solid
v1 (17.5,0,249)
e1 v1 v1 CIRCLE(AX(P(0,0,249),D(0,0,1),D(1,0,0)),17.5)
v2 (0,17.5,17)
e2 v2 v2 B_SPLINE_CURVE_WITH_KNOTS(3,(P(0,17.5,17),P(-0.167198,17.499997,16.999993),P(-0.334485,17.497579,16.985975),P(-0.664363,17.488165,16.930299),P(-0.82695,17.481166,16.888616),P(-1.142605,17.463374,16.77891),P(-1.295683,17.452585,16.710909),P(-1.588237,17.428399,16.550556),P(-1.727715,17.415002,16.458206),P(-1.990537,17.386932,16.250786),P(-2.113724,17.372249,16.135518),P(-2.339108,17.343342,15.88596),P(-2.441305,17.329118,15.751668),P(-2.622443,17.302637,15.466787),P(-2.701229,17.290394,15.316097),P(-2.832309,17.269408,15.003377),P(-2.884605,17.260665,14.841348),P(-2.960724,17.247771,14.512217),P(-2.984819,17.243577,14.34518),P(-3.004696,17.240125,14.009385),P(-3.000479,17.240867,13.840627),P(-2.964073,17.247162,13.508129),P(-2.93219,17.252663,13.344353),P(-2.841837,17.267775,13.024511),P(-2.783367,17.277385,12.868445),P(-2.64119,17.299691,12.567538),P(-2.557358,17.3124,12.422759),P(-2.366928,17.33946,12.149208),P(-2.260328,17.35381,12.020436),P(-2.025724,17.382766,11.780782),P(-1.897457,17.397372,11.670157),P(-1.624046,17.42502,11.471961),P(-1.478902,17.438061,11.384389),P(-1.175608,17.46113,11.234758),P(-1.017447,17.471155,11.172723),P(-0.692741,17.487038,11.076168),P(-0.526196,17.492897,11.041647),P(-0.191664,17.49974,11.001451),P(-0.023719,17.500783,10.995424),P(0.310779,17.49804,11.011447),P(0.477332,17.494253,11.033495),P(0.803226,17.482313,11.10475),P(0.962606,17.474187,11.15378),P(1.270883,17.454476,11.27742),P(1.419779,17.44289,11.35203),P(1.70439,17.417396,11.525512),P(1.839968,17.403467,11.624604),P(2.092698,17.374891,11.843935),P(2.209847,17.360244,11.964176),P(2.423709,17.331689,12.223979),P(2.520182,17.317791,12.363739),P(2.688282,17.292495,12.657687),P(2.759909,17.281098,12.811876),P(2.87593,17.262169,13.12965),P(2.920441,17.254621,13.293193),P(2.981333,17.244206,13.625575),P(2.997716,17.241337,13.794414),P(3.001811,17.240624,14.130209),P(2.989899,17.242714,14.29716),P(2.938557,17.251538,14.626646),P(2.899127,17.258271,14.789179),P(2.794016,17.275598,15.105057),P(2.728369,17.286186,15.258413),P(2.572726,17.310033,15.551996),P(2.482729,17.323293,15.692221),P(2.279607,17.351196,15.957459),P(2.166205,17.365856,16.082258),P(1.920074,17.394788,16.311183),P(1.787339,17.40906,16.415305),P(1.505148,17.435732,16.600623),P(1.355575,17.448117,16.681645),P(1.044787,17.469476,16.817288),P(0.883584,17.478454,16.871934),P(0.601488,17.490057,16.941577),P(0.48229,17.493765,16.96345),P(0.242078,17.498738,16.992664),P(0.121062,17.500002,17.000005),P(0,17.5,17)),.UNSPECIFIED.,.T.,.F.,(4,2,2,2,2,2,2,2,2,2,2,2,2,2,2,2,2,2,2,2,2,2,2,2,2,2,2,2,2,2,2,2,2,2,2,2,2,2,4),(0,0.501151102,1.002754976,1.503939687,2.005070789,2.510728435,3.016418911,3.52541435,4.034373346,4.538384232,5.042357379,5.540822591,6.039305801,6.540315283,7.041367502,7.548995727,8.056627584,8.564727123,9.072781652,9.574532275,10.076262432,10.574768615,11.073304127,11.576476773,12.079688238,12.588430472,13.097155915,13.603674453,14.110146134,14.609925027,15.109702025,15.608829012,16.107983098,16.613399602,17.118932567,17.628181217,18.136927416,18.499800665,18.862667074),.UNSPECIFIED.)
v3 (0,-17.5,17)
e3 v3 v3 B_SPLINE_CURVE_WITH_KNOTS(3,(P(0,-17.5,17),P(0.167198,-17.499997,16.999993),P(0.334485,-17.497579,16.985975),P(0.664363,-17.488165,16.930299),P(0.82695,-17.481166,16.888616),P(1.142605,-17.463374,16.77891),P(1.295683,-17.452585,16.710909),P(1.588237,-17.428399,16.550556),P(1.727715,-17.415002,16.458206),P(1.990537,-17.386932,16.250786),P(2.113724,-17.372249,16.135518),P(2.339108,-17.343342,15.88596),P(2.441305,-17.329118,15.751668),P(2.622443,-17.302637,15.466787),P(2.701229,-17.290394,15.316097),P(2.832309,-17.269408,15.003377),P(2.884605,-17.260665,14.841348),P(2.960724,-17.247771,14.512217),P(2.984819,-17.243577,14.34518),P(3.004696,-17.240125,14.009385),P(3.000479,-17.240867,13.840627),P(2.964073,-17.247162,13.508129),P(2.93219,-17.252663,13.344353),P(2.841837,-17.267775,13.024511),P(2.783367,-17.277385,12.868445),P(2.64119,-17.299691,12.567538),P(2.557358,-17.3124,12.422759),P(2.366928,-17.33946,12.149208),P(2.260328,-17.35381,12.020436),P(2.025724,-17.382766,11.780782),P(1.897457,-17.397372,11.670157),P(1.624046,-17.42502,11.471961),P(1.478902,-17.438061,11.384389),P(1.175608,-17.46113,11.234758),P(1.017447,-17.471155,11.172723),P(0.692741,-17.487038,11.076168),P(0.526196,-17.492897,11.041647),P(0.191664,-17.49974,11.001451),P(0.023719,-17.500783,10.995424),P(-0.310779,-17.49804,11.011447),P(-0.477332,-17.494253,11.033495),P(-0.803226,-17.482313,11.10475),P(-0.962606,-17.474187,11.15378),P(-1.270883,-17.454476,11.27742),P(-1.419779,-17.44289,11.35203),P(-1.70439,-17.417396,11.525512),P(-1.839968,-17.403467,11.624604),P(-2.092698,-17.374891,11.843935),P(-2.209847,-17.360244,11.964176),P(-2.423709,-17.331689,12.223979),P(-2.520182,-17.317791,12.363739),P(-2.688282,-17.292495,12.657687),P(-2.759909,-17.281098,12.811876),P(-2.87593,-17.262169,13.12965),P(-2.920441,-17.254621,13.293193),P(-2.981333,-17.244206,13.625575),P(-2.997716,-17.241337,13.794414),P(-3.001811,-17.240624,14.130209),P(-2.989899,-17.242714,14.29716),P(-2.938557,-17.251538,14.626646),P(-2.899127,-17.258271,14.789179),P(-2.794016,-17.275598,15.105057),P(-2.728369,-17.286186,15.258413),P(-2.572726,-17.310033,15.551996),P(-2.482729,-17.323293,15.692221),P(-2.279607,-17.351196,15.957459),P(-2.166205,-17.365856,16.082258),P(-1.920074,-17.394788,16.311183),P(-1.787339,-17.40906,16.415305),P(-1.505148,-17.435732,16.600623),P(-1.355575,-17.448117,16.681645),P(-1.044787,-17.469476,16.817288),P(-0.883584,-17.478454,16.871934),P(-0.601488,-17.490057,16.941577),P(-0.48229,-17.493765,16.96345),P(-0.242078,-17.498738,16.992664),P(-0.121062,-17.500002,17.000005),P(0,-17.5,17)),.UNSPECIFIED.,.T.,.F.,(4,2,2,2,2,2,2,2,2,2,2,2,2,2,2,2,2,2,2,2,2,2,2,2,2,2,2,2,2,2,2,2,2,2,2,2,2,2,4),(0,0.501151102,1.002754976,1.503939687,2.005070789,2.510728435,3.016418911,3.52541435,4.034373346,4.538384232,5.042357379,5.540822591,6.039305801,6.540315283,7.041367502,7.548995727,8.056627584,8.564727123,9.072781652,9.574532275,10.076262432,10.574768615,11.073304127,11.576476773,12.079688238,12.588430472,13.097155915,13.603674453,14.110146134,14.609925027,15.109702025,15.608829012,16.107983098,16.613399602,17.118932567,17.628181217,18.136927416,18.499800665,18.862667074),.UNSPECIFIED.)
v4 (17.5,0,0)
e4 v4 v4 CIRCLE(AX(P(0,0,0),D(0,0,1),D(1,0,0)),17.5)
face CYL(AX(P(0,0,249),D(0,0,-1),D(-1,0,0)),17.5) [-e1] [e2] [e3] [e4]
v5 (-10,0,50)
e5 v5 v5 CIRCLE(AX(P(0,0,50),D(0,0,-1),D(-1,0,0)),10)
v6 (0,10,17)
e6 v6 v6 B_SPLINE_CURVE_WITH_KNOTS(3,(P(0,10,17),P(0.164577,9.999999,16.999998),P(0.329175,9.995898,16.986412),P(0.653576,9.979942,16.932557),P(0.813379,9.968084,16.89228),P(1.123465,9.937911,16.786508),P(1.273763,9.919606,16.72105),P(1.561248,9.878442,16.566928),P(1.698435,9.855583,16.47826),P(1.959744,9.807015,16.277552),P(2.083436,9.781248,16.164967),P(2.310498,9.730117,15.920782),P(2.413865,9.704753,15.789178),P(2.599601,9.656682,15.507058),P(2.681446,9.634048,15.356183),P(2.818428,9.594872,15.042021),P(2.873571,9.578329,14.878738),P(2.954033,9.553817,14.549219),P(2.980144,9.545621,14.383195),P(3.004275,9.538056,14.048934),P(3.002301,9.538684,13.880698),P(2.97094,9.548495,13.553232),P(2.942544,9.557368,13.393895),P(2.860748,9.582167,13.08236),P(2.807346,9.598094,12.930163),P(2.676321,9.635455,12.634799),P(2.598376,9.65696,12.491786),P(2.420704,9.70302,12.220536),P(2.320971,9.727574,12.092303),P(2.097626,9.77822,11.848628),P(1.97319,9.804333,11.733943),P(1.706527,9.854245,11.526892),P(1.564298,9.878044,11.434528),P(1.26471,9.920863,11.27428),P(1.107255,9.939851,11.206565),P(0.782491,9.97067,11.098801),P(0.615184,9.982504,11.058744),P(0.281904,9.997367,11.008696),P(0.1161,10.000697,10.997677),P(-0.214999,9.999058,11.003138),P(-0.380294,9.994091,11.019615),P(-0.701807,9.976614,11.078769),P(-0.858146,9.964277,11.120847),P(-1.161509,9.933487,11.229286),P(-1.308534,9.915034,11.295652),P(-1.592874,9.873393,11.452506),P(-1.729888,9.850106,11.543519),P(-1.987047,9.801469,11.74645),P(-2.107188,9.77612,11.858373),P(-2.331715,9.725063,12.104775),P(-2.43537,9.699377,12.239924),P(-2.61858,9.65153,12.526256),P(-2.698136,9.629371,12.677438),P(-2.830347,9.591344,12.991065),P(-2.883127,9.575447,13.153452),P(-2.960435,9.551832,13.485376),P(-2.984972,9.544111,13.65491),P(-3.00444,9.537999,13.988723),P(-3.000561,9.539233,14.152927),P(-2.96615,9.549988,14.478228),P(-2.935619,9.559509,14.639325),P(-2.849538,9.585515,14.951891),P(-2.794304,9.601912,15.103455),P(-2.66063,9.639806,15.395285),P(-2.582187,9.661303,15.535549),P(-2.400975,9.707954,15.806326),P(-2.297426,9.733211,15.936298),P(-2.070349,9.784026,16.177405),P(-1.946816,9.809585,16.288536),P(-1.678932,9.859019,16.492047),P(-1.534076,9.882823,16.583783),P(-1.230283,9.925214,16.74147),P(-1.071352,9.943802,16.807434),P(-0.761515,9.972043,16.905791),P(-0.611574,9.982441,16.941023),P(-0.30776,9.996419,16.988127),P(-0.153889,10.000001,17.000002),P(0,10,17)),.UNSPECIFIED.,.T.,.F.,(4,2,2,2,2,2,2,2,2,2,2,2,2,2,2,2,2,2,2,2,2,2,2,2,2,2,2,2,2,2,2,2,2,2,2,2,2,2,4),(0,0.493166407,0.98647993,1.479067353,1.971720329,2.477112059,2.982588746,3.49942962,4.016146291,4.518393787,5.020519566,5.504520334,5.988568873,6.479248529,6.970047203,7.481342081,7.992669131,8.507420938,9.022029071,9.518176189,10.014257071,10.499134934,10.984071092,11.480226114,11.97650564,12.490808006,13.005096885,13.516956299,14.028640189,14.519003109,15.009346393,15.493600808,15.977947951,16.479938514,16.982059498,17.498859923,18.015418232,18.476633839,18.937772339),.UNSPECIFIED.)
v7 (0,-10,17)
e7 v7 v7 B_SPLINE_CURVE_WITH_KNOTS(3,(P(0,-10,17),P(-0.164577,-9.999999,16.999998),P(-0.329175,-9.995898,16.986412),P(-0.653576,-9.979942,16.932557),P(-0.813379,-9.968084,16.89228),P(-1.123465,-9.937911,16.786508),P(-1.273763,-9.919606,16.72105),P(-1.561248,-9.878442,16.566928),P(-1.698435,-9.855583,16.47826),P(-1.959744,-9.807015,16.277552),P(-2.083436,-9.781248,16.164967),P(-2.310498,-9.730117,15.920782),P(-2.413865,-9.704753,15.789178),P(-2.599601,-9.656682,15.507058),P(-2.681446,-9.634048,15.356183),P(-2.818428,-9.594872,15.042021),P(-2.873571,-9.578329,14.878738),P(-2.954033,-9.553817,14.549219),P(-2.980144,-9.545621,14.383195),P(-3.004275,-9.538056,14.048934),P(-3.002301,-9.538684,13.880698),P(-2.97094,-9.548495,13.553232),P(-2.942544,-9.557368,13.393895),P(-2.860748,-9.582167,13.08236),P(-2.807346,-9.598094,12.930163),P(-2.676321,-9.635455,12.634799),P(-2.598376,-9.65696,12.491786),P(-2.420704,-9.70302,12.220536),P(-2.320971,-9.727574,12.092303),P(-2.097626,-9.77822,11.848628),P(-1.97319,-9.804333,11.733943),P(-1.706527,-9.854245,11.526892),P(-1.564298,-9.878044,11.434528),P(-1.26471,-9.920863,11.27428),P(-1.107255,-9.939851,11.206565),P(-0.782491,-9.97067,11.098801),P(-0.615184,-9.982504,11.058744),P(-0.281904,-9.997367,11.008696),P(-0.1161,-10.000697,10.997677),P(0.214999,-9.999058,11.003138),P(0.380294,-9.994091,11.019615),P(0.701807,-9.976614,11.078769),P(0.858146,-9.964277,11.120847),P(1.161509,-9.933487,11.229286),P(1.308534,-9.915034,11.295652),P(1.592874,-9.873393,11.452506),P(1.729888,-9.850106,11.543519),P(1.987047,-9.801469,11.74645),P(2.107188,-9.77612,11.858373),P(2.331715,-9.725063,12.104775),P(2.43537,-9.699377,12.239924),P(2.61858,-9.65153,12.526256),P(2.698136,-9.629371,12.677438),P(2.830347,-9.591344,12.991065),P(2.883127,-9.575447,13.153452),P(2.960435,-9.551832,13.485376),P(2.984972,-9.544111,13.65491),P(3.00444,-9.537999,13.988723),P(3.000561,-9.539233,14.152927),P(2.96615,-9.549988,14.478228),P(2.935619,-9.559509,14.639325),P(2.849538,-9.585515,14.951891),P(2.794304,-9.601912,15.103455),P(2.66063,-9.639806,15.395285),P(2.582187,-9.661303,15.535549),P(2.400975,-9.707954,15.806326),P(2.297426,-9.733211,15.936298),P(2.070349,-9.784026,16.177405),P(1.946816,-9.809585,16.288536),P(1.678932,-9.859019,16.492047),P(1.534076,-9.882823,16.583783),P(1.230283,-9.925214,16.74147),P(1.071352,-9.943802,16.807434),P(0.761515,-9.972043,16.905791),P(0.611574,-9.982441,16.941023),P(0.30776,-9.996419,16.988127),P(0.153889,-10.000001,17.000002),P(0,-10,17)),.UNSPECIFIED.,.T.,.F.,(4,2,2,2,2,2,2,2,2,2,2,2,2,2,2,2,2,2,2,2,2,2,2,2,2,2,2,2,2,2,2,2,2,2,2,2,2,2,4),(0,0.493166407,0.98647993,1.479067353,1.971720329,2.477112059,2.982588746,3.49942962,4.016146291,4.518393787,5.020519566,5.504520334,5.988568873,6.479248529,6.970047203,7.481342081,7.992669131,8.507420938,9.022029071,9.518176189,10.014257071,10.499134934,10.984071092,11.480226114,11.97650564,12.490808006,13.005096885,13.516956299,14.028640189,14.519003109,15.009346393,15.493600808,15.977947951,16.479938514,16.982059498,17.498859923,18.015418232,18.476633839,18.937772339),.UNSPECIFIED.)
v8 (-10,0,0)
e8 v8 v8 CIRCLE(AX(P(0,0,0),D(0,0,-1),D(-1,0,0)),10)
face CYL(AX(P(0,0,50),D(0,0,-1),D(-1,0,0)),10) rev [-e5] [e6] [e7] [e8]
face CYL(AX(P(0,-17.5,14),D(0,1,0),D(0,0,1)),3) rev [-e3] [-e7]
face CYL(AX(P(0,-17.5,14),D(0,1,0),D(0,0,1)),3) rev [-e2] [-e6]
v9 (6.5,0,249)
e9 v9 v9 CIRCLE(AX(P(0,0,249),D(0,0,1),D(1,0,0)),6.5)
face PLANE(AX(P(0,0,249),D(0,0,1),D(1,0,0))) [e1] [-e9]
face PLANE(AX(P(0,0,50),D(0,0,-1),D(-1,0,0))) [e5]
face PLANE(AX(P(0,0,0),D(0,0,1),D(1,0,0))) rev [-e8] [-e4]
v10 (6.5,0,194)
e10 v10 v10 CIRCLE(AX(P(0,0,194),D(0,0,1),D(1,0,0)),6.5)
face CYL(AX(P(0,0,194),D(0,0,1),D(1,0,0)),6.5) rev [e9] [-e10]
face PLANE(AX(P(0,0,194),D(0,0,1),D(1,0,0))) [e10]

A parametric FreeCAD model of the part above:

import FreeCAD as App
import Part
import Sketcher

V = App.Vector
Q = App.Units.Quantity

doc = App.newDocument("Part")
params = doc.addObject("Spreadsheet::Sheet", "Params")
for row, (alias, value) in enumerate([
    ("sketch1_diameter", "35 mm"),
    ("pad1_length", "249 mm"),
    ("sketch2_diameter", "13 mm"),
    ("pocket1_length", "55 mm"),
    ("sketch3_diameter", "20 mm"),
    ("pocket2_length", "50 mm"),
    ("sketch4_diameter", "6 mm"),
], start=1):
    params.set(f"A{row}", alias)
    params.set(f"B{row}", "=" + value)
    params.setAlias(f"B{row}", alias)

body = doc.addObject("PartDesign::Body", "Body")

sketch1 = doc.addObject("Sketcher::SketchObject", "Sketch")
body.addObject(sketch1)
sketch1.AttachmentSupport = (doc.XY_Plane, [""])
sketch1.MapMode = "FlatFace"
sketch1.addGeometry(Part.Circle(V(0, 0, 0), V(0, 0, 1), 18), False)
sketch1.addConstraint(Sketcher.Constraint("Coincident", 0, 3, -1, 1))
sketch1.addConstraint(Sketcher.Constraint("Diameter", 0, Q("35 mm")))
sketch1.setExpression("Constraints[1]", "Params.sketch1_diameter")
pad1 = doc.addObject("PartDesign::Pad", "Pad")
body.addObject(pad1)
pad1.Profile = sketch1
pad1.setExpression("Length", "Params.pad1_length")

sketch2 = doc.addObject("Sketcher::SketchObject", "Sketch001")
body.addObject(sketch2)
sketch2.AttachmentSupport = (doc.XY_Plane, [""])
sketch2.MapMode = "FlatFace"
sketch2.AttachmentOffset = App.Placement(V(0, 0, 249), App.Rotation())
sketch2.addGeometry(Part.Circle(V(0, 0, 0), V(0, 0, 1), 6), False)
sketch2.addConstraint(Sketcher.Constraint("Coincident", 0, 3, -1, 1))
sketch2.addConstraint(Sketcher.Constraint("Diameter", 0, Q("13 mm")))
sketch2.setExpression("Constraints[1]", "Params.sketch2_diameter")
pocket1 = doc.addObject("PartDesign::Pocket", "Pocket")
body.addObject(pocket1)
pocket1.Profile = sketch2
pocket1.setExpression("Length", "Params.pocket1_length")

sketch3 = doc.addObject("Sketcher::SketchObject", "Sketch002")
body.addObject(sketch3)
sketch3.AttachmentSupport = (doc.XY_Plane, [""])
sketch3.MapMode = "FlatFace"
sketch3.addGeometry(Part.Circle(V(0, 0, 0), V(0, 0, 1), 10), False)
sketch3.addConstraint(Sketcher.Constraint("Coincident", 0, 3, -1, 1))
sketch3.addConstraint(Sketcher.Constraint("Diameter", 0, Q("20 mm")))
sketch3.setExpression("Constraints[1]", "Params.sketch3_diameter")
pocket2 = doc.addObject("PartDesign::Pocket", "Pocket001")
body.addObject(pocket2)
pocket2.Profile = sketch3
pocket2.setExpression("Length", "Params.pocket2_length")
pocket2.Reversed = True

sketch4 = doc.addObject("Sketcher::SketchObject", "Sketch003")
body.addObject(sketch4)
sketch4.AttachmentSupport = (doc.XZ_Plane, [""])
sketch4.MapMode = "FlatFace"
sketch4.addGeometry(Part.Circle(V(0, 14, 0), V(0, 0, 1), 3), False)
sketch4.addConstraint(Sketcher.Constraint("PointOnObject", 0, 3, -2))
sketch4.addConstraint(Sketcher.Constraint("Diameter", 0, Q("6 mm")))
sketch4.addConstraint(Sketcher.Constraint("DistanceY", -1, 1, 0, 3, Q("14 mm")))
sketch4.setExpression("Constraints[1]", "Params.sketch4_diameter")
pocket3 = doc.addObject("PartDesign::Pocket", "Pocket002")
body.addObject(pocket3)
pocket3.Profile = sketch4
pocket3.Type = "ThroughAll"
pocket3.Midplane = True

doc.recompute()
